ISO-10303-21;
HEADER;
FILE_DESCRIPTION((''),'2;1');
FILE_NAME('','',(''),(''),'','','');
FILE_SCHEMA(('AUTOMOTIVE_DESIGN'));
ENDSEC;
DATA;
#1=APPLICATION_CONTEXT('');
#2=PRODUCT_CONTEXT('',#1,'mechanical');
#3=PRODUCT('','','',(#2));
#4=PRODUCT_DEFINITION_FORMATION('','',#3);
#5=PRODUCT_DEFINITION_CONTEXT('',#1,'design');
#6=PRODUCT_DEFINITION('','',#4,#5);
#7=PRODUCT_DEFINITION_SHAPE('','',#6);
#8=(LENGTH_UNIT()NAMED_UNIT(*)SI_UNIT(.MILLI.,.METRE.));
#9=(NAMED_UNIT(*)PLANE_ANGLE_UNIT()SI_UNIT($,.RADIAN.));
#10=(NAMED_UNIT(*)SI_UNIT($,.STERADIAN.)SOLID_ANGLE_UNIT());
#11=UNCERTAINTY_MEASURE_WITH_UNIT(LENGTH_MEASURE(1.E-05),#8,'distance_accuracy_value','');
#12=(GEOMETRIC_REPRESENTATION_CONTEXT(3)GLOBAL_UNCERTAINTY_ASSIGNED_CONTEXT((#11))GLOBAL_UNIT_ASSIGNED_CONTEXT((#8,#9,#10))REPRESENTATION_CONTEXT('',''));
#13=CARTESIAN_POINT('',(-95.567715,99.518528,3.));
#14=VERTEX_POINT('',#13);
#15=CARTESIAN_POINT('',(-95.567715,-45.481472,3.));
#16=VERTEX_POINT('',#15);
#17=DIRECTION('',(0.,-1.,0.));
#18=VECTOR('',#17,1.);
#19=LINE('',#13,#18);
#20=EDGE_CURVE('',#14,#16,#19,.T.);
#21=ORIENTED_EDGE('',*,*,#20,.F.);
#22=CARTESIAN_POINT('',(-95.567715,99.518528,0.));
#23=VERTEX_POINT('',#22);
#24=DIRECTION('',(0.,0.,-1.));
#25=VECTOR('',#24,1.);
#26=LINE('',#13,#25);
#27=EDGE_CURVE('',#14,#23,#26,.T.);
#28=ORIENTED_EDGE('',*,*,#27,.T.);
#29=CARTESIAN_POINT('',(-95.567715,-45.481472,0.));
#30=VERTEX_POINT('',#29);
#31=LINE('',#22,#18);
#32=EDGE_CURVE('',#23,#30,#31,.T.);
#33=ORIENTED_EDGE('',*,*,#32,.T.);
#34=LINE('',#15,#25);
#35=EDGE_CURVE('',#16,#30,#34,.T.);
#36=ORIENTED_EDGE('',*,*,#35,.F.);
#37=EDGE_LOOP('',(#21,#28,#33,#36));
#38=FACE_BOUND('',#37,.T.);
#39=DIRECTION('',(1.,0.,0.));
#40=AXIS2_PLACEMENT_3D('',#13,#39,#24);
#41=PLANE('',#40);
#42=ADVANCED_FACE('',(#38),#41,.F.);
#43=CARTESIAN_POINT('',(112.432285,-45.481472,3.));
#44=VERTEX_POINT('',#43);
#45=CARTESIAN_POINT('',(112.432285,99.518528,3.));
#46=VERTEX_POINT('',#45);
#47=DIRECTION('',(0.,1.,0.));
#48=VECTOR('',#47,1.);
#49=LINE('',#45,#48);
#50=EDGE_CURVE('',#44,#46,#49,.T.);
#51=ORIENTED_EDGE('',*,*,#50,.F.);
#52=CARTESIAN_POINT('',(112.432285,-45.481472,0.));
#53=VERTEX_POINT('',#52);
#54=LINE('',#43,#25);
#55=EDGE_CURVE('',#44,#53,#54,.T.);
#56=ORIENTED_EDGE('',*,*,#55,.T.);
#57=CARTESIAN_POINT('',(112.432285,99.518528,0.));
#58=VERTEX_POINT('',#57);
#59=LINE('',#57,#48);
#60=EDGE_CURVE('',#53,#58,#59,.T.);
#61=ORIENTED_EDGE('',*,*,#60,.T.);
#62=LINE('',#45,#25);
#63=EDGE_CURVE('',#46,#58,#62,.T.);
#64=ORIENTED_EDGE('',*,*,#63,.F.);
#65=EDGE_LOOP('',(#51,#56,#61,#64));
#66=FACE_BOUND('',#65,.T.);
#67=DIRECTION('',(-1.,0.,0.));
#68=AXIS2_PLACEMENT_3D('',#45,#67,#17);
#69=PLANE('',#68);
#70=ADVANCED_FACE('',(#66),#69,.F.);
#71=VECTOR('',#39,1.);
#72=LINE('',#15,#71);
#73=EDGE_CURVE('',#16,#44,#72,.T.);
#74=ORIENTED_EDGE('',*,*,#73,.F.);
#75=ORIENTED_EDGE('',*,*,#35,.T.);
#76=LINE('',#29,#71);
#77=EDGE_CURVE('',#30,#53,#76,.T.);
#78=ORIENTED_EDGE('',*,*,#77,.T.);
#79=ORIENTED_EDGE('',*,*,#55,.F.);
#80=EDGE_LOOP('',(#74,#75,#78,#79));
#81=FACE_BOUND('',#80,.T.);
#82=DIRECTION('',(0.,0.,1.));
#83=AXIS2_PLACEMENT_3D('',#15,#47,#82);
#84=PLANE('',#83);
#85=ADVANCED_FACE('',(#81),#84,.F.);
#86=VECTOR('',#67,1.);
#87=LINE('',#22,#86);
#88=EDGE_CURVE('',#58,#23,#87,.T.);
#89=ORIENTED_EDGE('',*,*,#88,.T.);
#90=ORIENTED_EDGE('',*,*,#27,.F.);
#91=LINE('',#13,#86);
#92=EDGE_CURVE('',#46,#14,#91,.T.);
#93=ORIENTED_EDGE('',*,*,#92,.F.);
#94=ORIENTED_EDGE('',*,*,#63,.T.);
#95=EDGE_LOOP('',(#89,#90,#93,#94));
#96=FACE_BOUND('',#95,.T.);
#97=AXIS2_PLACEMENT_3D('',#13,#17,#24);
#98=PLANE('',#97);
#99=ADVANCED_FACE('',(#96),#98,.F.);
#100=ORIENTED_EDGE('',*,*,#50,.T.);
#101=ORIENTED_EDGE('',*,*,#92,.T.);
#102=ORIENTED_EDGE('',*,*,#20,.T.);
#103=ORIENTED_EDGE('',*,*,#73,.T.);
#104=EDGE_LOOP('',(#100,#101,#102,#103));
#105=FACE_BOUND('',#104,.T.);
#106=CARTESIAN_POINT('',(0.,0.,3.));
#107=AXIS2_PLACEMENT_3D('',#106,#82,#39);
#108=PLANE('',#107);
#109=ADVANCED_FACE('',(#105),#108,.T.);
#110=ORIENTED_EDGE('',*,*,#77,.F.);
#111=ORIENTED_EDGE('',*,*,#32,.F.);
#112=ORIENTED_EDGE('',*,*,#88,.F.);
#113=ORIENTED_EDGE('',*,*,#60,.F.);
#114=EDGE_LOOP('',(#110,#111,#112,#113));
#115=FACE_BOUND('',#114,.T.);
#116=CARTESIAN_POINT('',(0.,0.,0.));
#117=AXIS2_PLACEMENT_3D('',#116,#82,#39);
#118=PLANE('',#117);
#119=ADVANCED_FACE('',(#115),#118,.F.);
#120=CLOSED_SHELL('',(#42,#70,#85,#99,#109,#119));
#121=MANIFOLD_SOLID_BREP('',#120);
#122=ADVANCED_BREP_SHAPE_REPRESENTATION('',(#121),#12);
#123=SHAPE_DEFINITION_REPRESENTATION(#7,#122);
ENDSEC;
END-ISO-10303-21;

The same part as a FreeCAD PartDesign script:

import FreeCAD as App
import Part
import Sketcher
Q = App.Units.Quantity

doc = App.newDocument("Part")
body = doc.addObject("PartDesign::Body", "Body")

sketch1 = doc.addObject("Sketcher::SketchObject", "Sketch")
body.addObject(sketch1)
sketch1.AttachmentSupport = (doc.XY_Plane, [""])
sketch1.MapMode = "FlatFace"
sketch1.addGeometry(Part.LineSegment(App.Vector(-96, 100, 0), App.Vector(-96, -45, 0)), False)
sketch1.addGeometry(Part.LineSegment(App.Vector(-96, -45, 0), App.Vector(112, -45, 0)), False)
sketch1.addGeometry(Part.LineSegment(App.Vector(112, -45, 0), App.Vector(112, 100, 0)), False)
sketch1.addGeometry(Part.LineSegment(App.Vector(112, 100, 0), App.Vector(-96, 100, 0)), False)
sketch1.addConstraint(Sketcher.Constraint("Coincident", 0, 2, 1, 1))
sketch1.addConstraint(Sketcher.Constraint("Coincident", 1, 2, 2, 1))
sketch1.addConstraint(Sketcher.Constraint("Coincident", 2, 2, 3, 1))
sketch1.addConstraint(Sketcher.Constraint("Coincident", 3, 2, 0, 1))
sketch1.addConstraint(Sketcher.Constraint("Vertical", 0))
sketch1.addConstraint(Sketcher.Constraint("Horizontal", 1))
sketch1.addConstraint(Sketcher.Constraint("Vertical", 2))
sketch1.addConstraint(Sketcher.Constraint("Horizontal", 3))
sketch1.addConstraint(Sketcher.Constraint("DistanceX", 1, 1, 1, 2, Q("208 mm")))
sketch1.addConstraint(Sketcher.Constraint("DistanceY", 0, 2, 0, 1, Q("145 mm")))
sketch1.addConstraint(Sketcher.Constraint("DistanceX", 0, 2, -1, 1, Q("95.567715 mm")))
sketch1.addConstraint(Sketcher.Constraint("DistanceY", 0, 2, -1, 1, Q("45.481472 mm")))
pad1 = doc.addObject("PartDesign::Pad", "Pad")
body.addObject(pad1)
pad1.Profile = sketch1
pad1.Length = 3

doc.recompute()
